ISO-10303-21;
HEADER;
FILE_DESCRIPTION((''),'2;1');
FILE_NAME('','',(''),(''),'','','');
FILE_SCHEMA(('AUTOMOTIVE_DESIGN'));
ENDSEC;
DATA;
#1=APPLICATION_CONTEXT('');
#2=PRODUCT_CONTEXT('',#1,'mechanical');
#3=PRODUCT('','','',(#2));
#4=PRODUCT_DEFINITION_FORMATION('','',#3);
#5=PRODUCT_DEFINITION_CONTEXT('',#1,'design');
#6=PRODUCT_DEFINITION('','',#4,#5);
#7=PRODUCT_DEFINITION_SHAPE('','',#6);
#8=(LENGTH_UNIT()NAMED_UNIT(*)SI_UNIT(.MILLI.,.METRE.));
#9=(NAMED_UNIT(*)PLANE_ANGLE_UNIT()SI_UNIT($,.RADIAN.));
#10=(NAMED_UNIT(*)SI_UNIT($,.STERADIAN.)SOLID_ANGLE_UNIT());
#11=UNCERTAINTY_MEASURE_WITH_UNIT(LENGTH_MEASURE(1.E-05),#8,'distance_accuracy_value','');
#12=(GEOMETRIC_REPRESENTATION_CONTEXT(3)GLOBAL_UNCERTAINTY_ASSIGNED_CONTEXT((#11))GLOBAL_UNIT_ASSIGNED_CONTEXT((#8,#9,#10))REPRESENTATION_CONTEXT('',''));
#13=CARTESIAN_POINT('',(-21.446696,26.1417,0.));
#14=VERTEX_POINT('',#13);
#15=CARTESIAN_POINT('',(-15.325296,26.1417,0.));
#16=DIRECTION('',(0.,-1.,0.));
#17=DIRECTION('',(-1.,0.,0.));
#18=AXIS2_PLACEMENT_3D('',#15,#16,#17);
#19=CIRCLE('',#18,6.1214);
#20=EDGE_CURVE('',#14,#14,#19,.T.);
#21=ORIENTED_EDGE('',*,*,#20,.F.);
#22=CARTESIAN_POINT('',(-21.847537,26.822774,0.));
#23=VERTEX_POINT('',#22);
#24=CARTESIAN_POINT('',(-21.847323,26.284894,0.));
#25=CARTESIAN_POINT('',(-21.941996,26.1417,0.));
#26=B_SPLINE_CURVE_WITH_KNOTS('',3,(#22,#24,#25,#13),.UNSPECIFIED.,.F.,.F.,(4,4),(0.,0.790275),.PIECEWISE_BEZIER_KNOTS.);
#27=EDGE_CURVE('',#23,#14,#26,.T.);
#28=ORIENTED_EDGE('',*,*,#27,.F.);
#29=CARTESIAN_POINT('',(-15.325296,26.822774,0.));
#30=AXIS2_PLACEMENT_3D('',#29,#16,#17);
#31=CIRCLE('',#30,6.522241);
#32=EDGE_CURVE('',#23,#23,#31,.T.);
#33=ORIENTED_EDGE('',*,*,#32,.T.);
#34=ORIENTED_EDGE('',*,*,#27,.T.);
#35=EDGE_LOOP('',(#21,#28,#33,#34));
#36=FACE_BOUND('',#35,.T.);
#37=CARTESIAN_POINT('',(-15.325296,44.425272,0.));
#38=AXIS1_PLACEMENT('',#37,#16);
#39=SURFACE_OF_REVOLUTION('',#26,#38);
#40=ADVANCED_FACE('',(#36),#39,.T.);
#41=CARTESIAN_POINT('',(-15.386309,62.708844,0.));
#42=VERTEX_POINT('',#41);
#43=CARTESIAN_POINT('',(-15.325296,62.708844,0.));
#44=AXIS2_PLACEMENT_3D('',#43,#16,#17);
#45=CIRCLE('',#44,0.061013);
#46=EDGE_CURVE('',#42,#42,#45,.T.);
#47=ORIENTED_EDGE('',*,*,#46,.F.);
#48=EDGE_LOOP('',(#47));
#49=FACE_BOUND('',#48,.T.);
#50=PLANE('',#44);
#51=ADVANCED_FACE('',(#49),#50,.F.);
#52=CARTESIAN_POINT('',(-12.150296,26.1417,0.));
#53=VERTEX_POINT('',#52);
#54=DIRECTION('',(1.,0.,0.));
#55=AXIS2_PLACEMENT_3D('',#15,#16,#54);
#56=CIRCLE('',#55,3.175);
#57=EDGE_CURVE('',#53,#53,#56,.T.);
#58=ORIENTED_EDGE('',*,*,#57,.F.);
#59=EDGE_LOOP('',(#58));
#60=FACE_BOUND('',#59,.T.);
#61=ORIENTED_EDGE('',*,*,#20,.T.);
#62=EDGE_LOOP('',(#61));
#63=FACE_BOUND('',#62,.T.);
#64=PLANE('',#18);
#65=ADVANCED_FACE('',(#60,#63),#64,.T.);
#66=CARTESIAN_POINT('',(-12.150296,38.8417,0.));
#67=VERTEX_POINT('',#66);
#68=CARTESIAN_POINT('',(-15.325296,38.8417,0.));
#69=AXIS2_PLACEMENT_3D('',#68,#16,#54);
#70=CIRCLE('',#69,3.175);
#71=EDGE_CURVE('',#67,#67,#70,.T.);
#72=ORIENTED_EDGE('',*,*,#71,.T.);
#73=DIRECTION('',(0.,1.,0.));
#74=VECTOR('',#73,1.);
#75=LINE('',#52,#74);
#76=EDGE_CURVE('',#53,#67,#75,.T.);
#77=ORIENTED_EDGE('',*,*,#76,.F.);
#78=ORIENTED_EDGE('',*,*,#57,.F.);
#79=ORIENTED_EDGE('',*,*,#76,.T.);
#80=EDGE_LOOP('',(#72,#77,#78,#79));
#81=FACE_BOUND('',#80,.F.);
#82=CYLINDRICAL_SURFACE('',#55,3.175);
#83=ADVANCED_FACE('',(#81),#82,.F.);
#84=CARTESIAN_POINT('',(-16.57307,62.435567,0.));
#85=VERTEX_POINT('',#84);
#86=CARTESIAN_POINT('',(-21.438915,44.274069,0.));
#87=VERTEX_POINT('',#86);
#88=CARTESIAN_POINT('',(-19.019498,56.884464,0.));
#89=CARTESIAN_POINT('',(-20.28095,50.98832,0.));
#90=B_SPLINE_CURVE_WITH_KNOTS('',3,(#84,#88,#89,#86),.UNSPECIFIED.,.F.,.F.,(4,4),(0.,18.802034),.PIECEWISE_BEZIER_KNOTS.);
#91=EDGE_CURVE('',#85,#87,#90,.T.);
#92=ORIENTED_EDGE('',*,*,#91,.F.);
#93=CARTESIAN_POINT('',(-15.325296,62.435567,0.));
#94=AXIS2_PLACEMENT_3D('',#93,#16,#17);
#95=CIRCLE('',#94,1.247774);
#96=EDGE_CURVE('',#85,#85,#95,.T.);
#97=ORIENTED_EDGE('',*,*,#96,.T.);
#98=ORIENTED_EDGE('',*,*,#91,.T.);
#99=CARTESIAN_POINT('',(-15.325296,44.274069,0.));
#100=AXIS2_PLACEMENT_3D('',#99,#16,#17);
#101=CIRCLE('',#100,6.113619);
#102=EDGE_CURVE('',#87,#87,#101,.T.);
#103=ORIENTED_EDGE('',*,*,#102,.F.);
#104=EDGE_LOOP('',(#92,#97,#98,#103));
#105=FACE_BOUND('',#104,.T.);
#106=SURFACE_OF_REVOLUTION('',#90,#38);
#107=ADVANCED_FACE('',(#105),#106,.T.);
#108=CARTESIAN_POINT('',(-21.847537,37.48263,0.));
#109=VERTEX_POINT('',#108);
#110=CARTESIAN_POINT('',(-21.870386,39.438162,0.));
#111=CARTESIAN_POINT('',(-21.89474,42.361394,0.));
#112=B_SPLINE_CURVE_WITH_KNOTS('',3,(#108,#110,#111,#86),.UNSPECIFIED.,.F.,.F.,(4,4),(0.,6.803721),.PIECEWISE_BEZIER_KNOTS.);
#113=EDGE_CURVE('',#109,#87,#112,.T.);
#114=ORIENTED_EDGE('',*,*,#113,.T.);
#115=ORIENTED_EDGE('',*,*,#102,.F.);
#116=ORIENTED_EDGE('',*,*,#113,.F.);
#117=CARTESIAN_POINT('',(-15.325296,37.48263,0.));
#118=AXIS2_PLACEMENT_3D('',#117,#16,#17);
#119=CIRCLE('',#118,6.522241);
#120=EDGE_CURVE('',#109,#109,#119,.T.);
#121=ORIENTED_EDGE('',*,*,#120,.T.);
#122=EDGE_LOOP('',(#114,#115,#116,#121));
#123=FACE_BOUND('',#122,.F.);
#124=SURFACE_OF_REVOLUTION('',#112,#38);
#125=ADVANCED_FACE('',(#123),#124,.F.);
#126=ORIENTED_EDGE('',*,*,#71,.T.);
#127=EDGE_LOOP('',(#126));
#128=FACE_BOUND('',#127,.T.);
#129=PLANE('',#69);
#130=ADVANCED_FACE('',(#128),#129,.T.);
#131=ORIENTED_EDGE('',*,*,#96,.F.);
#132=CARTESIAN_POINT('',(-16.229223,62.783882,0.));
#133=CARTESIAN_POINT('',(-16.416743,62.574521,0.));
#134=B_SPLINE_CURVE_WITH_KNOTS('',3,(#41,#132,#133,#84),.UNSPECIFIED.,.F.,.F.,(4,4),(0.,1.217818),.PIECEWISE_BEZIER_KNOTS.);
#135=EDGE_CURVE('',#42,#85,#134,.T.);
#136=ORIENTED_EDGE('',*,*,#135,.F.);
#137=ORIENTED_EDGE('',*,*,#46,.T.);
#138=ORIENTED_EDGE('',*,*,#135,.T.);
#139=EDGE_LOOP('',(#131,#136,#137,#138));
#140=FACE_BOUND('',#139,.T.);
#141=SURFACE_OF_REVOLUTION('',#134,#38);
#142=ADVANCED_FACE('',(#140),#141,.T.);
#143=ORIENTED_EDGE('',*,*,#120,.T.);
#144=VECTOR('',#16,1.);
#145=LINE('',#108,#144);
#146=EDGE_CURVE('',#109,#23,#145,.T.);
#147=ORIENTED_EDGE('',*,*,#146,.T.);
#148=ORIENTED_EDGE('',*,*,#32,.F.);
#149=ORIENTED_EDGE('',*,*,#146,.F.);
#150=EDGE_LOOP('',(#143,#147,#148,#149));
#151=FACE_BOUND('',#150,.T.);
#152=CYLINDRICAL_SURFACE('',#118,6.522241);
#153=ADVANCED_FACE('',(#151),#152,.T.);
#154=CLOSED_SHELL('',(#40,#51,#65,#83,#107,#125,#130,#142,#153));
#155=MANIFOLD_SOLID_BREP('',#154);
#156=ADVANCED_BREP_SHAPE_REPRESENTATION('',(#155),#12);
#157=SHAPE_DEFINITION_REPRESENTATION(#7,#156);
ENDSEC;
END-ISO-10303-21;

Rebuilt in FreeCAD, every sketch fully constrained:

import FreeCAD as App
import Part
import Sketcher
from FreeCAD import Vector
Q = App.Units.Quantity

doc = App.newDocument("Part")
body = doc.addObject("PartDesign::Body", "Body")

# Sketch on XY plane
sketch1 = body.newObject("Sketcher::SketchObject", "Sketch")
sketch1.AttachmentSupport = (doc.getObject("XY_Plane"), [""])
sketch1.MapMode = "FlatFace"
sketch1.addGeometry([
    Part.LineSegment(Vector(-21.446696, 26.1417, 0), Vector(-15.325296, 26.1417, 0)),  # 0
    Part.LineSegment(Vector(-15.325296, 26.1417, 0), Vector(-15.325296, 62.708844, 0)),  # 1
    Part.LineSegment(Vector(-15.325296, 62.708844, 0), Vector(-15.386309, 62.708844, 0)),  # 2
    Part.BSplineCurve([Vector(-15.386309, 62.708844, 0), Vector(-16.229223, 62.783882, 0), Vector(-16.416743, 62.574521, 0), Vector(-16.57307, 62.435567, 0)], [4, 4], [0, 1.217818], False, 3, [1, 1, 1, 1], False),  # 3
    Part.BSplineCurve([Vector(-16.57307, 62.435567, 0), Vector(-19.019498, 56.884464, 0), Vector(-20.28095, 50.98832, 0), Vector(-21.438915, 44.274069, 0)], [4, 4], [0, 18.802034], False, 3, [1, 1, 1, 1], False),  # 4
    Part.BSplineCurve([Vector(-21.847537, 37.48263, 0), Vector(-21.870386, 39.438162, 0), Vector(-21.89474, 42.361394, 0), Vector(-21.438915, 44.274069, 0)], [4, 4], [0, 6.803721], False, 3, [1, 1, 1, 1], False),  # 5
    Part.LineSegment(Vector(-21.847537, 37.48263, 0), Vector(-21.847537, 26.822774, 0)),  # 6
    Part.BSplineCurve([Vector(-21.847537, 26.822774, 0), Vector(-21.847323, 26.284894, 0), Vector(-21.941996, 26.1417, 0), Vector(-21.446696, 26.1417, 0)], [4, 4], [0, 0.790275], False, 3, [1, 1, 1, 1], False),  # 7
], False)
sketch1.addGeometry(Part.LineSegment(Vector(-15.325296, 62.708844, 0), Vector(-15.325296, 26.1417, 0)), True)  # axis
sketch1.addConstraint([
    Sketcher.Constraint("Block", 3),
    Sketcher.Constraint("Block", 4),
    Sketcher.Constraint("Block", 5),
    Sketcher.Constraint("Block", 7),
    Sketcher.Constraint("Coincident", 0, 2, 1, 1),
    Sketcher.Constraint("Coincident", 1, 2, 2, 1),
    Sketcher.Constraint("Coincident", 2, 2, 3, 1),
    Sketcher.Constraint("Coincident", 5, 1, 6, 1),
    Sketcher.Constraint("Coincident", 6, 2, 7, 1),
    Sketcher.Constraint("Coincident", 7, 2, 0, 1),
    Sketcher.Constraint("Horizontal", 0),
    Sketcher.Constraint("Vertical", 1),
    Sketcher.Constraint("Horizontal", 2),
    Sketcher.Constraint("Vertical", 8),
    Sketcher.Constraint("Coincident", 8, 1, 1, 2),
    Sketcher.Constraint("Equal", 1, 8),
    Sketcher.Constraint("DistanceX", 0, 1, 0, 2, Q("0.241 in")),
])
revolution = body.newObject("PartDesign::Revolution", "Revolution")
revolution.Profile = sketch1
revolution.ReferenceAxis = (sketch1, ["Axis0"])
revolution.Angle = 360

# Sketch on XZ plane
sketch2 = body.newObject("Sketcher::SketchObject", "Sketch001")
sketch2.AttachmentSupport = (doc.getObject("XZ_Plane"), [""])
sketch2.MapMode = "FlatFace"
sketch2.AttachmentOffset = App.Placement(Vector(0, 0, -26.1417), App.Rotation())
sketch2.addGeometry(Part.Circle(Vector(-15.3, 0, 0), Vector(0, 0, 1), 3.2), False)
sketch2.addConstraint([
    Sketcher.Constraint("PointOnObject", 0, 3, -1),
    Sketcher.Constraint("Diameter", 0, Q("0.25 in")),
    Sketcher.Constraint("DistanceX", 0, 3, -1, 1, Q("15.325296 mm")),
])
pocket1 = body.newObject("PartDesign::Pocket", "Pocket")
pocket1.Profile = sketch2
pocket1.Length = Q("0.5 in")

doc.recompute()
